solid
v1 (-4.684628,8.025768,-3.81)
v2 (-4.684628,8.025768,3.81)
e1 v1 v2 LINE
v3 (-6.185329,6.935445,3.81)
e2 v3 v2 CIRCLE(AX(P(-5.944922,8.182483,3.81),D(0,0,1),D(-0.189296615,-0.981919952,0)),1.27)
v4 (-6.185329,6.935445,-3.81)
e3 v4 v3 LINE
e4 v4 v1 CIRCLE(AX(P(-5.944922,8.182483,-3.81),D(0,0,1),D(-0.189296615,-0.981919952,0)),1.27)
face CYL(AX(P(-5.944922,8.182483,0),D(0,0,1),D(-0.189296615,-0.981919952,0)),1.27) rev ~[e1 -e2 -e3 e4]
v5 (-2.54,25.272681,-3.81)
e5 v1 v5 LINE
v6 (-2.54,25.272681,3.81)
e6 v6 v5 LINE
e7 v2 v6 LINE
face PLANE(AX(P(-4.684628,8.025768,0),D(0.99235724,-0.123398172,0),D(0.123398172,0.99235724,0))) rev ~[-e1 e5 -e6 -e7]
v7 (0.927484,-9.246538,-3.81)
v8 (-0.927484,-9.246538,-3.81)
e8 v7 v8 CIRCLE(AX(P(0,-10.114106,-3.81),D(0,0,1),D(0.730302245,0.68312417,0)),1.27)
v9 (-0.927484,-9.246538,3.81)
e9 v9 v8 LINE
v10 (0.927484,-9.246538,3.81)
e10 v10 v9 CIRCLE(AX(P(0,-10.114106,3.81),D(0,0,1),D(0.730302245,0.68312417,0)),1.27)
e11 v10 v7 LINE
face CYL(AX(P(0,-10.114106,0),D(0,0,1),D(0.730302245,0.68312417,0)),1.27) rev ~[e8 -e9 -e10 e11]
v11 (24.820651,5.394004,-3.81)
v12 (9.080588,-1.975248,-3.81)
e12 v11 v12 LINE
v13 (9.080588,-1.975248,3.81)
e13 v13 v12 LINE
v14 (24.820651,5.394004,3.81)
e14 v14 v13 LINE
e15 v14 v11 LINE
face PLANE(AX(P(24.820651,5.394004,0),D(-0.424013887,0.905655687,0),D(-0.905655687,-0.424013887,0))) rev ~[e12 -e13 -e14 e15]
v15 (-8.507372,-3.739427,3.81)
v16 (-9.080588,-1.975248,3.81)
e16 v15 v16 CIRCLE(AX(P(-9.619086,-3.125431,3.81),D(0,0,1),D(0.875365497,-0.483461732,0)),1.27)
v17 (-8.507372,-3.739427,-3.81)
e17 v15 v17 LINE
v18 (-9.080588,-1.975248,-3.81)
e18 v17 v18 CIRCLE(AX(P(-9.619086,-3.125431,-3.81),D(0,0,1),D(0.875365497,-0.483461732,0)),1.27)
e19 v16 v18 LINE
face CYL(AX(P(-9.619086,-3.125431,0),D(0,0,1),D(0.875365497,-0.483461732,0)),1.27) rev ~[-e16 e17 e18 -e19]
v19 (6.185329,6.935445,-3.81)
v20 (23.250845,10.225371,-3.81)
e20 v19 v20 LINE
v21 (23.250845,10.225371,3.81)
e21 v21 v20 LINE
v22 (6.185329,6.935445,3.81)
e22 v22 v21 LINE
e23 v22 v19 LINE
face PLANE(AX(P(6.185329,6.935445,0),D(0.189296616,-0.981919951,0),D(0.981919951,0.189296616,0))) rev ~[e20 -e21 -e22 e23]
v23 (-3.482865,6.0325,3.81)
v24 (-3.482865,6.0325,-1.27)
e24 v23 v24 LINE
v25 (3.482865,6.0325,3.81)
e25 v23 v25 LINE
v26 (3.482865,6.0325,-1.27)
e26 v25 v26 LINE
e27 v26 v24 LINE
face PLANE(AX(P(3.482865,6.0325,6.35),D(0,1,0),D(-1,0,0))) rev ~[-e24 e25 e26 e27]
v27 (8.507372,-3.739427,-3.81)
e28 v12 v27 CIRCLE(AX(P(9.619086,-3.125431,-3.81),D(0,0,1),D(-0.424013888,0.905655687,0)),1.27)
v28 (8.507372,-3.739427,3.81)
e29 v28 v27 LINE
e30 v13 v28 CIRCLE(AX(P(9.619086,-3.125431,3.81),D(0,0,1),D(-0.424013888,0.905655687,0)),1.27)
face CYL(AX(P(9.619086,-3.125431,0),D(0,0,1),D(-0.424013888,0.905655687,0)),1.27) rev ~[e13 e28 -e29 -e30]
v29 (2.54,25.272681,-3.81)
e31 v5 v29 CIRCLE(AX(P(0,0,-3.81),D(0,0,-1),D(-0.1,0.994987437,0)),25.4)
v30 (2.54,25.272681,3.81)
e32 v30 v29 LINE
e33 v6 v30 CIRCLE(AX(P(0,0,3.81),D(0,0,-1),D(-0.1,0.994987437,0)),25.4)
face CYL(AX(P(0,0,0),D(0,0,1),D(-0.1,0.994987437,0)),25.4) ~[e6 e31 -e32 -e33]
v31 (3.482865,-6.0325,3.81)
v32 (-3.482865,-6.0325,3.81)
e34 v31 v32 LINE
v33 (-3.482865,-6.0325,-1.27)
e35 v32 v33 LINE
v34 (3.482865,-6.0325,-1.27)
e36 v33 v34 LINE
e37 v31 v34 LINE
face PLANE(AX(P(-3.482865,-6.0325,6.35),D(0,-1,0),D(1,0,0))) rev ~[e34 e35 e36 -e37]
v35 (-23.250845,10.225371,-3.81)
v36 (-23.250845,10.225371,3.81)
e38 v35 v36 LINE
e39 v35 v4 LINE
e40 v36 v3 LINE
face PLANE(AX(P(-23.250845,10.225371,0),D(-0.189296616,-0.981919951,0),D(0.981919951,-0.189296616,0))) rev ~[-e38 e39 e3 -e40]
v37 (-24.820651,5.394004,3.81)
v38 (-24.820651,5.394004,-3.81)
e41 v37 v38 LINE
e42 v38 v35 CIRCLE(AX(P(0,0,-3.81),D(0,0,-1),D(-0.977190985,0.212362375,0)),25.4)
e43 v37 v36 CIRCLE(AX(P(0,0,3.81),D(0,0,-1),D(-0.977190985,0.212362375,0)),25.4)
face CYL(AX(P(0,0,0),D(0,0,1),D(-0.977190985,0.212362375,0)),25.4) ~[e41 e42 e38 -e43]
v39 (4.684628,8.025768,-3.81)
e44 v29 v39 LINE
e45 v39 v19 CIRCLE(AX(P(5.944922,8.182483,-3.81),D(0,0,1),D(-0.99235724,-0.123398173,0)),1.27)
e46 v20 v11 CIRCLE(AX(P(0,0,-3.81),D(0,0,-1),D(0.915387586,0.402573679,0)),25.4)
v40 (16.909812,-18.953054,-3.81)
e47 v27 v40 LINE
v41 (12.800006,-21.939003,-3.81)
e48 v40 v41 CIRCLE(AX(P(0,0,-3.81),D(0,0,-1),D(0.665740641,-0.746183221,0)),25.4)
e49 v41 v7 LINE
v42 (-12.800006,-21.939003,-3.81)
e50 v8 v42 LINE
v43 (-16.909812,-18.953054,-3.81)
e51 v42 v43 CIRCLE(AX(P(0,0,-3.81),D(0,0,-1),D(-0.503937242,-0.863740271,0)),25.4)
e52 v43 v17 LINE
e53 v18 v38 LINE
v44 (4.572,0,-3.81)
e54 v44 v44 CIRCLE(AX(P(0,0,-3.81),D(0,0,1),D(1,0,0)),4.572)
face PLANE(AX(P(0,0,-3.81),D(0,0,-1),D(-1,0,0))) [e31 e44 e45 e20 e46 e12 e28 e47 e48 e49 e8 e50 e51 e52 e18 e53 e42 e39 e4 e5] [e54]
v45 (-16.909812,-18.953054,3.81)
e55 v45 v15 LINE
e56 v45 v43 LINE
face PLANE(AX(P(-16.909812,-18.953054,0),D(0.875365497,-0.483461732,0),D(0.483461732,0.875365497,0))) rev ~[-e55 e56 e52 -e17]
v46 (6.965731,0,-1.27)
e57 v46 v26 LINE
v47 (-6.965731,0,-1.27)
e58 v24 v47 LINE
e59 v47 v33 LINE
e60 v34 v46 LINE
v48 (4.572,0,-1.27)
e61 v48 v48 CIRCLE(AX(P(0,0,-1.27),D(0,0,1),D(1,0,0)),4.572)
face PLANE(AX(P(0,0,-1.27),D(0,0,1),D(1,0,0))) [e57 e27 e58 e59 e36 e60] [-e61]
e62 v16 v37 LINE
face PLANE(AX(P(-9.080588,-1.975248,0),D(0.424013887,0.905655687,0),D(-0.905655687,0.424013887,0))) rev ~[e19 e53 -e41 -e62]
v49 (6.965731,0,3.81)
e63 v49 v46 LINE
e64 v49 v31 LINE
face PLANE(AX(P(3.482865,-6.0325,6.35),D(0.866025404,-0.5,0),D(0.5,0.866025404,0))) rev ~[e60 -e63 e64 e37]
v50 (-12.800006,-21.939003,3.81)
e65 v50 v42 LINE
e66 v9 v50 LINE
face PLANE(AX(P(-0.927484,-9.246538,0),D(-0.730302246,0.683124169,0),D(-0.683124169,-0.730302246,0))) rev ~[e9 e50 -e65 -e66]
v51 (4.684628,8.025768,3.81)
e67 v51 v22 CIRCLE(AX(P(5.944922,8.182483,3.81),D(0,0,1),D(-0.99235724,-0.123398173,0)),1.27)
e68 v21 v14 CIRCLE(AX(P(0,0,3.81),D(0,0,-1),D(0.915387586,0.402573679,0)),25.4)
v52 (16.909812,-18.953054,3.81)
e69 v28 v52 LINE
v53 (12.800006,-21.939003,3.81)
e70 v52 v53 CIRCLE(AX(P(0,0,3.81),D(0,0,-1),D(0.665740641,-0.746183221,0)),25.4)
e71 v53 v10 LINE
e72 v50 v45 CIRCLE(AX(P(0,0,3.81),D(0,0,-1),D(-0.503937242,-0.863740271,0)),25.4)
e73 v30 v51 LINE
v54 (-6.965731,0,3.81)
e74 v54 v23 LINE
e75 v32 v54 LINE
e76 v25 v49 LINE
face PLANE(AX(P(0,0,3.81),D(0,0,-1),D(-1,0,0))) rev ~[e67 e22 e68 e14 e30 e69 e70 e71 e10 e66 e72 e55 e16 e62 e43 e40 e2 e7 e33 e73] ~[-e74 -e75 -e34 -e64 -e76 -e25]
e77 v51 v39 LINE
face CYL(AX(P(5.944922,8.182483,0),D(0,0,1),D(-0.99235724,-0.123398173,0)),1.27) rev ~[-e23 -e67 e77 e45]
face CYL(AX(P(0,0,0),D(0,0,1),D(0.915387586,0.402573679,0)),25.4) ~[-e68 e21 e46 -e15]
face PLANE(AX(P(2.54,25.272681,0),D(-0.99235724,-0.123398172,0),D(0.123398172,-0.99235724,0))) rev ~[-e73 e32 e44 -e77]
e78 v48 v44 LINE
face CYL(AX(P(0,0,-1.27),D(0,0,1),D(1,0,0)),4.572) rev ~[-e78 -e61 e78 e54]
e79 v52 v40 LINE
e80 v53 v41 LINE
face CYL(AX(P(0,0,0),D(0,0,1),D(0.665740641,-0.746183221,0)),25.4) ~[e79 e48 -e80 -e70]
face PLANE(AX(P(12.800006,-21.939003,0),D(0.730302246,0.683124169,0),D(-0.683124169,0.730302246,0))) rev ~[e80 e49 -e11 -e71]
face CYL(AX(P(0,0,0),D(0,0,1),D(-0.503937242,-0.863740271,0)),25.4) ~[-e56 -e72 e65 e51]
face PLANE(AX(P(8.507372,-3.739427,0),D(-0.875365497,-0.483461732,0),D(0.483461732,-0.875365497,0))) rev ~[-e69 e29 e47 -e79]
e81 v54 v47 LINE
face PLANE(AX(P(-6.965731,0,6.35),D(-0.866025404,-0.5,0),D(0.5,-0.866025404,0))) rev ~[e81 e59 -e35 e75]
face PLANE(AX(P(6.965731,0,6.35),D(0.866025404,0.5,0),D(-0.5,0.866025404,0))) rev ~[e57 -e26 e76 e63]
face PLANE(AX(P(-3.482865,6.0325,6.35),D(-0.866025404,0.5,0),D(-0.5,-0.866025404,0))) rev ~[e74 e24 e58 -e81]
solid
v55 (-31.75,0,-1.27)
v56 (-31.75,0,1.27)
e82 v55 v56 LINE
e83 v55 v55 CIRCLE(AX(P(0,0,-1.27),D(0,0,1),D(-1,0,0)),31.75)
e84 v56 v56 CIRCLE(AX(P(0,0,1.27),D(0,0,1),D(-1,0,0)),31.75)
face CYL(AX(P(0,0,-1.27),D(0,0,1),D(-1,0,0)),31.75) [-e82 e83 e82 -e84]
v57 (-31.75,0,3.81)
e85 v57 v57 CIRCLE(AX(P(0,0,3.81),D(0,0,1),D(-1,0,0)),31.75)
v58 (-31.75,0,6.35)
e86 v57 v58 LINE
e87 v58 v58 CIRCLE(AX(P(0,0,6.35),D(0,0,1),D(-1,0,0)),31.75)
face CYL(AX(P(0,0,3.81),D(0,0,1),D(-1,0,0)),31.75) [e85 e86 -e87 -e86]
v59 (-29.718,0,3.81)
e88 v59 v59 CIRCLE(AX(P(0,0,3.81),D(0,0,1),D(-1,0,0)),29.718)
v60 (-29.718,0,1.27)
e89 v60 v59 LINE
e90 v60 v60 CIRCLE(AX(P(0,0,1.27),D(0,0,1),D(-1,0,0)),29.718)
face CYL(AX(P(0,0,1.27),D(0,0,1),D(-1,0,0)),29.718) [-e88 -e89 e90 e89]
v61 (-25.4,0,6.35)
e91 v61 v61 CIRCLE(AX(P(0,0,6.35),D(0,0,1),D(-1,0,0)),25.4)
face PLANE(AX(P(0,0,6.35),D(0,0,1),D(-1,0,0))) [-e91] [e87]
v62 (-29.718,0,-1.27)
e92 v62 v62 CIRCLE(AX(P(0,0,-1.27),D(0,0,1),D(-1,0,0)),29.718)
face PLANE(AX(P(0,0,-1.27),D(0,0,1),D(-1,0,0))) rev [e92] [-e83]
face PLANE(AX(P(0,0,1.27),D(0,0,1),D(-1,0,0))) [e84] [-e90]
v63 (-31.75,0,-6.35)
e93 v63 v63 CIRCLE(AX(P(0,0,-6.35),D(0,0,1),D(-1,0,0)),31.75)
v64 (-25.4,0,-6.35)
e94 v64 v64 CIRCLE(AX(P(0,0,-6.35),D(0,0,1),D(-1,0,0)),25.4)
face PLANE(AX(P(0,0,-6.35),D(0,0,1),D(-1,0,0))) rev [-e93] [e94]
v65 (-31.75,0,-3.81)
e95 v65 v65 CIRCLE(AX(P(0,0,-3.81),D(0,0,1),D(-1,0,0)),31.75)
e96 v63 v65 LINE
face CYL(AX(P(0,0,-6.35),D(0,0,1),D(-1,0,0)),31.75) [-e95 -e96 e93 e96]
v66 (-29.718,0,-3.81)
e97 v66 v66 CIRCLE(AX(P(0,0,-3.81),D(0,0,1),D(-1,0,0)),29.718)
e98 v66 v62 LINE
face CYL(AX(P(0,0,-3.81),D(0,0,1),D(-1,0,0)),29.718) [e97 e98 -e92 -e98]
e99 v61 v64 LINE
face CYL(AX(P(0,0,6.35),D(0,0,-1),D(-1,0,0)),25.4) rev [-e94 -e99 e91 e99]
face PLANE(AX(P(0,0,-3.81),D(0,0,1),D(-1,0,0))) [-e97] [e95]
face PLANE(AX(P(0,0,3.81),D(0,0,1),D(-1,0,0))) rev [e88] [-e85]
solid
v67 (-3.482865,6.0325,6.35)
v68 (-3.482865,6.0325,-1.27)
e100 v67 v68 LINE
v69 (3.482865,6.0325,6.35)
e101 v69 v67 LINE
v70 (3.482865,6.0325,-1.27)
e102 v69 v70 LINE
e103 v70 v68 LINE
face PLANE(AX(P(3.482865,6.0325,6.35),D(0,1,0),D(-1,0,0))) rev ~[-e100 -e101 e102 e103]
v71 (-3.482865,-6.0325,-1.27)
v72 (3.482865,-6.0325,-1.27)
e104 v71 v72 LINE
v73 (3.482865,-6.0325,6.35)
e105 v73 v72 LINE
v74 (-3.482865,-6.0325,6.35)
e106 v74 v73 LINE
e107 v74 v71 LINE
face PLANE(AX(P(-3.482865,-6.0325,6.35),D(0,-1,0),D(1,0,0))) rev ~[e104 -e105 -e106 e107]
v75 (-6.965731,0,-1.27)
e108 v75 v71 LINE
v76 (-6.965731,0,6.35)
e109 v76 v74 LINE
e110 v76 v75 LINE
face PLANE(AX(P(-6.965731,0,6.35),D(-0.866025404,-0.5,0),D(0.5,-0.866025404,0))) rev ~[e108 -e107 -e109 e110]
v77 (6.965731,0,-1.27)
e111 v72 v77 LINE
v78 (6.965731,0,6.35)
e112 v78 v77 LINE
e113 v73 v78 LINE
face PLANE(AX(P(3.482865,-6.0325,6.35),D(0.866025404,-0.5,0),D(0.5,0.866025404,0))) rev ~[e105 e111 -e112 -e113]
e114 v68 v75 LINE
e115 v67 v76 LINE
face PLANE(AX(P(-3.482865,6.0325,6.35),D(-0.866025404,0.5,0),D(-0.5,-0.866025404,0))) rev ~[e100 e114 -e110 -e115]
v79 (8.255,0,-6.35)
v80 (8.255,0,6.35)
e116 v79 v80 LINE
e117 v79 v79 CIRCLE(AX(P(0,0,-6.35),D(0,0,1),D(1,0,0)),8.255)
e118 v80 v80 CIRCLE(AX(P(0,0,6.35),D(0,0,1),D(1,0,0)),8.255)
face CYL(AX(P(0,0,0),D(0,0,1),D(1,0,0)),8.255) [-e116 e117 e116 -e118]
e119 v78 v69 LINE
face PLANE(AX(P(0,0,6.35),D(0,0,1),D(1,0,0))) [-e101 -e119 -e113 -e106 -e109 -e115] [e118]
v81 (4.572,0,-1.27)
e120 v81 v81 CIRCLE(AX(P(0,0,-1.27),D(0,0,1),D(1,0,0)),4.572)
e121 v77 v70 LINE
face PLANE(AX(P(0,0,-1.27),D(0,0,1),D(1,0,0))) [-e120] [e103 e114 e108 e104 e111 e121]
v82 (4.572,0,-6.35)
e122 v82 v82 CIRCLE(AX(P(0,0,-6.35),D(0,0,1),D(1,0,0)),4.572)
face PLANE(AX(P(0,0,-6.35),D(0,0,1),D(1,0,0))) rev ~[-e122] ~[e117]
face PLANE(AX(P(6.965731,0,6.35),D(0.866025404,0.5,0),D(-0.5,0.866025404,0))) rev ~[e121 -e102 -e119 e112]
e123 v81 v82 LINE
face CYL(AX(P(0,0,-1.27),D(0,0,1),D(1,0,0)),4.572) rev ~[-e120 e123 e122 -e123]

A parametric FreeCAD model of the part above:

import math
import FreeCAD as App
import Part
import Sketcher
from FreeCAD import Vector
Q = App.Units.Quantity


def add_polygon(sketch, points):
    """Adds a closed chain of lines whose ends are joined by coincident constraints."""
    first, n = sketch.GeometryCount, len(points)
    for a, b in zip(points, points[1:] + points[:1]):
        sketch.addGeometry(Part.LineSegment(App.Vector(*a, 0), App.Vector(*b, 0)), False)
    for i in range(n):
        sketch.addConstraint(Sketcher.Constraint("Coincident", first + i, 2, first + (i + 1) % n, 1))

doc = App.newDocument("Part")
body = doc.addObject("PartDesign::Body", "Body")

# Sketch on XZ plane
sketch1 = body.newObject("Sketcher::SketchObject", "Sketch")
sketch1.AttachmentSupport = (doc.getObject("XZ_Plane"), [""])
sketch1.MapMode = "FlatFace"
add_polygon(sketch1, [(-25.4, -6.3), (-31.8, -6.3), (-31.8, -3.8), (-29.7, -3.8), (-29.7, -1.3), (-31.8, -1.3), (-31.8, 1.3), (-29.7, 1.3), (-29.7, 3.8), (-31.8, 3.8), (-31.8, 6.3), (-25.4, 6.3)])  # lines 0-11
sketch1.addConstraint([
    Sketcher.Constraint("Horizontal", 0),
    Sketcher.Constraint("Vertical", 1),
    Sketcher.Constraint("Horizontal", 2),
    Sketcher.Constraint("Vertical", 3),
    Sketcher.Constraint("Horizontal", 4),
    Sketcher.Constraint("Vertical", 5),
    Sketcher.Constraint("Horizontal", 6),
    Sketcher.Constraint("Vertical", 7),
    Sketcher.Constraint("Horizontal", 8),
    Sketcher.Constraint("Vertical", 9),
    Sketcher.Constraint("Horizontal", 10),
    Sketcher.Constraint("Vertical", 11),
    Sketcher.Constraint("Symmetric", 3, 2, 6, 2, -1),
    Sketcher.Constraint("Symmetric", 1, 2, 8, 2, -1),
    Sketcher.Constraint("Vertical", 1, 2, 4, 2),
    Sketcher.Constraint("Equal", 1, 3),
    Sketcher.Constraint("Equal", 3, 5),
    Sketcher.Constraint("Equal", 7, 9),
    Sketcher.Constraint("DistanceY", 1, 1, 1, 2, Q("0.1 in")),
    Sketcher.Constraint("DistanceX", 10, 2, -1, 1, Q("1 in")),
    Sketcher.Constraint("DistanceX", 0, 2, 0, 1, Q("0.25 in")),
    Sketcher.Constraint("DistanceX", 2, 1, 2, 2, Q("0.08 in")),
])
revolution = body.newObject("PartDesign::Revolution", "Revolution")
revolution.Profile = sketch1
revolution.ReferenceAxis = (sketch1, ["V_Axis"])
revolution.Angle = 360
body2 = doc.addObject("PartDesign::Body", "Body001")

# Sketch on XY plane
sketch2 = body2.newObject("Sketcher::SketchObject", "Sketch001")
sketch2.AttachmentSupport = (doc.getObject("XY_Plane001"), [""])
sketch2.MapMode = "FlatFace"
sketch2.addGeometry(Part.Circle(Vector(0, 0, 0), Vector(0, 0, 1), 8), False)
sketch2.addConstraint([
    Sketcher.Constraint("Coincident", 0, 3, -1, 1),
    Sketcher.Constraint("Diameter", 0, Q("0.65 in")),
])
pad1 = body2.newObject("PartDesign::Pad", "Pad")
pad1.Profile = sketch2
pad1.Length = Q("0.5 in")
pad1.Midplane = True
body3 = doc.addObject("PartDesign::Body", "Body002")

# Sketch on XY plane
sketch3 = body3.newObject("Sketcher::SketchObject", "Sketch002")
sketch3.AttachmentSupport = (doc.getObject("XY_Plane002"), [""])
sketch3.MapMode = "FlatFace"
sketch3.addGeometry([
    Part.LineSegment(Vector(-2.54, 25.272681, 0), Vector(-4.684628, 8.025768, 0)),  # 0
    Part.ArcOfCircle(Part.Circle(Vector(-5.944922, 8.182483, 0), Vector(0, 0, 1), 1.27), math.radians(-100.911738), math.radians(-7.088262)),  # 1
    Part.LineSegment(Vector(-6.185329, 6.935445, 0), Vector(-23.250845, 10.225371, 0)),  # 2
    Part.ArcOfCircle(Part.Circle(Vector(0, 0, 0), Vector(0, 0, 1), 25.4), math.radians(156.26083), math.radians(167.73917)),  # 3
    Part.LineSegment(Vector(-24.820651, 5.394004, 0), Vector(-9.080588, -1.975248, 0)),  # 4
    Part.ArcOfCircle(Part.Circle(Vector(-9.619086, -3.125431, 0), Vector(0, 0, 1), 1.27), math.radians(-28.911738), math.radians(64.911738)),  # 5
    Part.LineSegment(Vector(-8.507372, -3.739427, 0), Vector(-16.909812, -18.953054, 0)),  # 6
    Part.ArcOfCircle(Part.Circle(Vector(0, 0, 0), Vector(0, 0, 1), 25.4), math.radians(-131.73917), math.radians(-120.26083)),  # 7
    Part.LineSegment(Vector(-12.800006, -21.939003, 0), Vector(-0.927484, -9.246538, 0)),  # 8
    Part.ArcOfCircle(Part.Circle(Vector(0, -10.114106, 0), Vector(0, 0, 1), 1.27), math.radians(43.088262), math.radians(136.911738)),  # 9
    Part.LineSegment(Vector(0.927484, -9.246538, 0), Vector(12.800006, -21.939003, 0)),  # 10
    Part.ArcOfCircle(Part.Circle(Vector(0, 0, 0), Vector(0, 0, 1), 25.4), math.radians(-59.73917), math.radians(-48.26083)),  # 11
    Part.LineSegment(Vector(16.909812, -18.953054, 0), Vector(8.507372, -3.739427, 0)),  # 12
    Part.ArcOfCircle(Part.Circle(Vector(9.619086, -3.125431, 0), Vector(0, 0, 1), 1.27), math.radians(115.088262), math.radians(208.911738)),  # 13
    Part.LineSegment(Vector(9.080588, -1.975248, 0), Vector(24.820651, 5.394004, 0)),  # 14
    Part.ArcOfCircle(Part.Circle(Vector(0, 0, 0), Vector(0, 0, 1), 25.4), math.radians(12.26083), math.radians(23.73917)),  # 15
    Part.LineSegment(Vector(23.250845, 10.225371, 0), Vector(6.185329, 6.935445, 0)),  # 16
    Part.ArcOfCircle(Part.Circle(Vector(5.944922, 8.182483, 0), Vector(0, 0, 1), 1.27), math.radians(-172.911738), math.radians(-79.088262)),  # 17
    Part.LineSegment(Vector(4.684628, 8.025768, 0), Vector(2.54, 25.272681, 0)),  # 18
    Part.ArcOfCircle(Part.Circle(Vector(0, 0, 0), Vector(0, 0, 1), 25.4), math.radians(84.26083), math.radians(95.73917)),  # 19
], False)
sketch3.addConstraint([
    Sketcher.Constraint("Coincident", 0, 2, 1, 2),
    Sketcher.Constraint("Coincident", 1, 1, 2, 1),
    Sketcher.Constraint("Coincident", 2, 2, 3, 1),
    Sketcher.Constraint("Coincident", 3, 2, 4, 1),
    Sketcher.Constraint("Coincident", 4, 2, 5, 2),
    Sketcher.Constraint("Coincident", 5, 1, 6, 1),
    Sketcher.Constraint("Coincident", 6, 2, 7, 1),
    Sketcher.Constraint("Coincident", 7, 2, 8, 1),
    Sketcher.Constraint("Coincident", 8, 2, 9, 2),
    Sketcher.Constraint("Coincident", 9, 1, 10, 1),
    Sketcher.Constraint("Coincident", 10, 2, 11, 1),
    Sketcher.Constraint("Coincident", 11, 2, 12, 1),
    Sketcher.Constraint("Coincident", 12, 2, 13, 2),
    Sketcher.Constraint("Coincident", 13, 1, 14, 1),
    Sketcher.Constraint("Coincident", 14, 2, 15, 1),
    Sketcher.Constraint("Coincident", 15, 2, 16, 1),
    Sketcher.Constraint("Coincident", 16, 2, 17, 2),
    Sketcher.Constraint("Coincident", 17, 1, 18, 1),
    Sketcher.Constraint("Coincident", 18, 2, 19, 1),
    Sketcher.Constraint("Coincident", 19, 2, 0, 1),
    Sketcher.Constraint("Coincident", 3, 3, -1, 1),
    Sketcher.Constraint("Coincident", 7, 3, -1, 1),
    Sketcher.Constraint("Coincident", 11, 3, -1, 1),
    Sketcher.Constraint("Coincident", 15, 3, -1, 1),
    Sketcher.Constraint("Coincident", 19, 3, -1, 1),
    Sketcher.Constraint("PointOnObject", 9, 3, -2),
    Sketcher.Constraint("Radius", 3, Q("1 in")),
    Sketcher.Constraint("Radius", 7, Q("1 in")),
    Sketcher.Constraint("Radius", 11, Q("1 in")),
    Sketcher.Constraint("Radius", 15, Q("1 in")),
    Sketcher.Constraint("Radius", 19, Q("1 in")),
    Sketcher.Constraint("Radius", 1, Q("0.05 in")),
    Sketcher.Constraint("Radius", 5, Q("0.05 in")),
    Sketcher.Constraint("Radius", 9, Q("0.05 in")),
    Sketcher.Constraint("Radius", 13, Q("0.05 in")),
    Sketcher.Constraint("Radius", 17, Q("0.05 in")),
    Sketcher.Constraint("DistanceX", -1, 1, 18, 2, Q("0.1 in")),
    Sketcher.Constraint("DistanceX", 19, 2, -1, 1, Q("0.1 in")),
    Sketcher.Constraint("DistanceX", 1, 1, 0, 2, 1.5007),
    Sketcher.Constraint("DistanceY", 5, 3, 2, 2, 13.350802),
    Sketcher.Constraint("DistanceY", 13, 3, 15, 2, 13.350802),
    Sketcher.Constraint("DistanceY", 12, 2, 15, 2, 13.964798),
    Sketcher.Constraint("DistanceX", 17, 1, 16, 2, 1.5007),
    Sketcher.Constraint("DistanceY", 5, 3, -1, 1, 3.125431),
    Sketcher.Constraint("DistanceY", 13, 3, -1, 1, 3.125431),
    Sketcher.Constraint("DistanceX", 0, 2, -1, 1, 4.684628),
    Sketcher.Constraint("DistanceX", 3, 2, -1, 1, 24.820651),
    Sketcher.Constraint("DistanceX", 4, 2, -1, 1, 9.080588),
    Sketcher.Constraint("DistanceX", 5, 1, -1, 1, 8.507372),
    Sketcher.Constraint("DistanceX", -1, 1, 12, 2, 8.507372),
    Sketcher.Constraint("DistanceX", -1, 1, 13, 1, 9.080588),
    Sketcher.Constraint("DistanceX", -1, 1, 14, 2, 24.820651),
    Sketcher.Constraint("DistanceX", -1, 1, 16, 2, 6.185329),
    Sketcher.Constraint("DistanceY", 9, 3, 1, 3, 18.296589),
    Sketcher.Constraint("DistanceX", 1, 3, 13, 3, 15.564008),
    Sketcher.Constraint("DistanceY", 1, 3, 2, 2, 2.042888),
    Sketcher.Constraint("DistanceX", 2, 2, 5, 3, 13.631759),
    Sketcher.Constraint("DistanceX", 6, 2, 5, 1, 8.40244),
    Sketcher.Constraint("DistanceY", 7, 2, 6, 2, 2.985949),
    Sketcher.Constraint("DistanceX", 8, 2, 10, 2, 13.72749),
    Sketcher.Constraint("DistanceX", 13, 3, 10, 2, 3.18092),
    Sketcher.Constraint("DistanceY", 10, 2, 11, 2, 2.985949),
    Sketcher.Constraint("DistanceX", 9, 1, 11, 2, 15.982328),
    Sketcher.Constraint("DistanceX", 17, 3, 14, 2, 18.875729),
    Sketcher.Constraint("DistanceY", 14, 2, 17, 3, 2.788479),
])
pad2 = body3.newObject("PartDesign::Pad", "Pad001")
pad2.Profile = sketch3
pad2.Length = Q("0.3 in")
pad2.Midplane = True
body4 = doc.addObject("PartDesign::Body", "Body003")

# Sketch on XY plane
sketch4 = body4.newObject("Sketcher::SketchObject", "Sketch003")
sketch4.AttachmentSupport = (doc.getObject("XY_Plane003"), [""])
sketch4.MapMode = "FlatFace"
sketch4.AttachmentOffset = App.Placement(Vector(0, 0, 0.25 * 25.4), App.Rotation())
add_polygon(sketch4, [(3, 6), (-3, 6), (-7, 0), (-3, -6), (3, -6), (7, 0)])  # lines 0-5
sketch4.addConstraint([
    Sketcher.Constraint("Horizontal", 0),
    Sketcher.Constraint("Horizontal", 3),
    Sketcher.Constraint("Symmetric", 0, 2, 3, 2, -1, 1),
    Sketcher.Constraint("Symmetric", 1, 2, 4, 2, -1, 1),
    Sketcher.Constraint("PointOnObject", 1, 2, -1),
    Sketcher.Constraint("Parallel", 2, 5),
    Sketcher.Constraint("Vertical", 0, 2, 2, 2),
    Sketcher.Constraint("Angle", 1, Q("-120 deg")),
    Sketcher.Constraint("DistanceY", 2, 2, 0, 2, Q("0.475 in")),
    Sketcher.Constraint("DistanceX", 0, 2, 0, 1, 6.965731),
])
pad3 = body4.newObject("PartDesign::Pad", "Pad002")
pad3.Profile = sketch4
pad3.Length = Q("0.3 in")
pad3.Reversed = True
doc.recompute()

body5 = doc.addObject("PartDesign::Body", "Body004")
body5.BaseFeature = body4
boolean = body2.newObject("PartDesign::Boolean", "Boolean")
boolean.Type = "Cut"
boolean.addObjects([body5])
doc.recompute()

boolean2 = body3.newObject("PartDesign::Boolean", "Boolean001")
boolean2.Type = "Cut"
boolean2.addObjects([body4])
body6 = doc.addObject("PartDesign::Body", "Body005")

# Sketch on XY plane
sketch5 = body6.newObject("Sketcher::SketchObject", "Sketch004")
sketch5.AttachmentSupport = (doc.getObject("XY_Plane005"), [""])
sketch5.MapMode = "FlatFace"
sketch5.AttachmentOffset = App.Placement(Vector(0, 0, -0.05 * 25.4), App.Rotation())
sketch5.addGeometry(Part.Circle(Vector(0, 0, 0), Vector(0, 0, 1), 4.6), False)
sketch5.addConstraint([
    Sketcher.Constraint("Coincident", 0, 3, -1, 1),
    Sketcher.Constraint("Diameter", 0, Q("0.36 in")),
])
pad4 = body6.newObject("PartDesign::Pad", "Pad003")
pad4.Profile = sketch5
pad4.Length = 6.08
pad4.Reversed = True
doc.recompute()

body7 = doc.addObject("PartDesign::Body", "Body006")
body7.BaseFeature = body6
boolean3 = body2.newObject("PartDesign::Boolean", "Boolean002")
boolean3.Type = "Cut"
boolean3.addObjects([body7])
doc.recompute()

boolean4 = body3.newObject("PartDesign::Boolean", "Boolean003")
boolean4.Type = "Cut"
boolean4.addObjects([body6])

doc.recompute()
